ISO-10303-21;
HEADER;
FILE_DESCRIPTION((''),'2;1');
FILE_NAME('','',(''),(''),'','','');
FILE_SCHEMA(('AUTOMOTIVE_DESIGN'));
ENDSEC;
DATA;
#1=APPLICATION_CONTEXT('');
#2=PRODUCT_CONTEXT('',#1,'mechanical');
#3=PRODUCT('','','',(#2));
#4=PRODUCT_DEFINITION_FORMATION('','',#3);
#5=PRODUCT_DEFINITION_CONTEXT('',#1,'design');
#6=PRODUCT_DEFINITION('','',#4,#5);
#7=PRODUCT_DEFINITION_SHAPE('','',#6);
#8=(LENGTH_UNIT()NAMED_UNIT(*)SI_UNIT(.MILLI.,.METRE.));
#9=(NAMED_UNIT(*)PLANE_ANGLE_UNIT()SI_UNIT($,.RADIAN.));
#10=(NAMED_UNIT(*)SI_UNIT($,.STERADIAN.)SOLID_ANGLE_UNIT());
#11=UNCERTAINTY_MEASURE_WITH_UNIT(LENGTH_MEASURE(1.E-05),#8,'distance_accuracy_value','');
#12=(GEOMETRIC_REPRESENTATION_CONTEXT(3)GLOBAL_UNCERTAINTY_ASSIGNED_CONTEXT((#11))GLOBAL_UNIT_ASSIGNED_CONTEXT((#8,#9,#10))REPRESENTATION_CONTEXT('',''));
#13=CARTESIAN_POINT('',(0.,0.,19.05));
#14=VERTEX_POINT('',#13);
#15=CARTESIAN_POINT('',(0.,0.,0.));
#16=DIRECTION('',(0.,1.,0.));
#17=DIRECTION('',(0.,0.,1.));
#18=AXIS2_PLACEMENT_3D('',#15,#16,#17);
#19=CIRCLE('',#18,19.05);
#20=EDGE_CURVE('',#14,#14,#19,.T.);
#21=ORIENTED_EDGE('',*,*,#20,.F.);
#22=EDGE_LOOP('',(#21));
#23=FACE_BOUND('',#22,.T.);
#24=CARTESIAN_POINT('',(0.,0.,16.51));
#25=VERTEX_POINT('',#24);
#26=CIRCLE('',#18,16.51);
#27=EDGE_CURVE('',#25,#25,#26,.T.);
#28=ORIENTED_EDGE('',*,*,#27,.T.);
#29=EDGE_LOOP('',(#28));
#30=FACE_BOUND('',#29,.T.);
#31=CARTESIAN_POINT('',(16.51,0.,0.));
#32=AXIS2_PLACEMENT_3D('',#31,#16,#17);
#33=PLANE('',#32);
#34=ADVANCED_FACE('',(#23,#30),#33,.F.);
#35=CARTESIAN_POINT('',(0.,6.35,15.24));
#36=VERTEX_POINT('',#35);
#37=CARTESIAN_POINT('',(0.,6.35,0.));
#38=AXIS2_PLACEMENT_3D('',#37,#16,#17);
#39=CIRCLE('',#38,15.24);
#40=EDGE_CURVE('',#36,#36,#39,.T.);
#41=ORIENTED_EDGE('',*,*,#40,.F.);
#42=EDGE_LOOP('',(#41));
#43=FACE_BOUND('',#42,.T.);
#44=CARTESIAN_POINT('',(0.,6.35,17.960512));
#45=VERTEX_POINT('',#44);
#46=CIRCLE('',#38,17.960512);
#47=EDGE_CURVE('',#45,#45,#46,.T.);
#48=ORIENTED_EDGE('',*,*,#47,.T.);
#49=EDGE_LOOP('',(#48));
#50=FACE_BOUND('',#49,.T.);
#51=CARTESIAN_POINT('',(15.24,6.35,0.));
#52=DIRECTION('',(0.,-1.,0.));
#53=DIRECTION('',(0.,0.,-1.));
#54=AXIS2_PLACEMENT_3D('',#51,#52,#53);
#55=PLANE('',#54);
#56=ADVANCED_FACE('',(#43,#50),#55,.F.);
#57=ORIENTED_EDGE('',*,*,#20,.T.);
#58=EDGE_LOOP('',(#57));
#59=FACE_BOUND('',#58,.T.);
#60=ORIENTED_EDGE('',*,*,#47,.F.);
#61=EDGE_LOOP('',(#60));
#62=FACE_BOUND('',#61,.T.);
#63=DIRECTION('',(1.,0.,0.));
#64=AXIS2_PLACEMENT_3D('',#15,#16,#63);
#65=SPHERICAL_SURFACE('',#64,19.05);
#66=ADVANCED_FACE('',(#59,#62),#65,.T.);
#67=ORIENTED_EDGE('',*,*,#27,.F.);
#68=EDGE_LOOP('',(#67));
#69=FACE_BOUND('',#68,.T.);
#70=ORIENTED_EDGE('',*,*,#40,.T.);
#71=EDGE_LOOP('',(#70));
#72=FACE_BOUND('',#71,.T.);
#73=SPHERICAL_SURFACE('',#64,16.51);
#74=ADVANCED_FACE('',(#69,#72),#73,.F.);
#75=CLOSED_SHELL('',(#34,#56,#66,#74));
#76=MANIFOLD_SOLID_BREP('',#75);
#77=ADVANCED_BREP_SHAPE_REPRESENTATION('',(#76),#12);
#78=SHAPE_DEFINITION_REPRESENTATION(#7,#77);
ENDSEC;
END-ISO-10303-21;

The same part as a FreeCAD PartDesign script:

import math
import FreeCAD as App
import Part
import Sketcher
from FreeCAD import Vector
Q = App.Units.Quantity

doc = App.newDocument("Part")
body = doc.addObject("PartDesign::Body", "Body")

# Sketch on XY plane
sketch1 = body.newObject("Sketcher::SketchObject", "Sketch")
sketch1.AttachmentSupport = (doc.getObject("XY_Plane"), [""])
sketch1.MapMode = "FlatFace"
sketch1.addGeometry([
    Part.LineSegment(Vector(16.5, 0, 0), Vector(19.1, 0, 0)),
    Part.ArcOfCircle(Part.Circle(Vector(0, 0, 0), Vector(0, 0, 1), 19.1), math.radians(0), math.radians(19.47)),
    Part.LineSegment(Vector(18, 6.3, 0), Vector(15.2, 6.3, 0)),
    Part.ArcOfCircle(Part.Circle(Vector(0, 0, 0), Vector(0, 0, 1), 16.5), math.radians(0), math.radians(23)),
], False)
sketch1.addConstraint([
    Sketcher.Constraint("Coincident", 0, 2, 1, 1),
    Sketcher.Constraint("Coincident", 1, 2, 2, 1),
    Sketcher.Constraint("Coincident", 2, 2, 3, 2),
    Sketcher.Constraint("Coincident", 3, 1, 0, 1),
    Sketcher.Constraint("Horizontal", 0),
    Sketcher.Constraint("Horizontal", 2),
    Sketcher.Constraint("Coincident", 1, 3, -1, 1),
    Sketcher.Constraint("Coincident", 3, 3, -1, 1),
    Sketcher.Constraint("PointOnObject", 0, 2, -1),
    Sketcher.Constraint("Radius", 1, Q("0.75 in")),
    Sketcher.Constraint("Radius", 3, Q("0.65 in")),
    Sketcher.Constraint("DistanceX", -1, 1, 2, 2, Q("0.6 in")),
])
revolution = body.newObject("PartDesign::Revolution", "Revolution")
revolution.Profile = sketch1
revolution.ReferenceAxis = (sketch1, ["V_Axis"])
revolution.Angle = 360

doc.recompute()
